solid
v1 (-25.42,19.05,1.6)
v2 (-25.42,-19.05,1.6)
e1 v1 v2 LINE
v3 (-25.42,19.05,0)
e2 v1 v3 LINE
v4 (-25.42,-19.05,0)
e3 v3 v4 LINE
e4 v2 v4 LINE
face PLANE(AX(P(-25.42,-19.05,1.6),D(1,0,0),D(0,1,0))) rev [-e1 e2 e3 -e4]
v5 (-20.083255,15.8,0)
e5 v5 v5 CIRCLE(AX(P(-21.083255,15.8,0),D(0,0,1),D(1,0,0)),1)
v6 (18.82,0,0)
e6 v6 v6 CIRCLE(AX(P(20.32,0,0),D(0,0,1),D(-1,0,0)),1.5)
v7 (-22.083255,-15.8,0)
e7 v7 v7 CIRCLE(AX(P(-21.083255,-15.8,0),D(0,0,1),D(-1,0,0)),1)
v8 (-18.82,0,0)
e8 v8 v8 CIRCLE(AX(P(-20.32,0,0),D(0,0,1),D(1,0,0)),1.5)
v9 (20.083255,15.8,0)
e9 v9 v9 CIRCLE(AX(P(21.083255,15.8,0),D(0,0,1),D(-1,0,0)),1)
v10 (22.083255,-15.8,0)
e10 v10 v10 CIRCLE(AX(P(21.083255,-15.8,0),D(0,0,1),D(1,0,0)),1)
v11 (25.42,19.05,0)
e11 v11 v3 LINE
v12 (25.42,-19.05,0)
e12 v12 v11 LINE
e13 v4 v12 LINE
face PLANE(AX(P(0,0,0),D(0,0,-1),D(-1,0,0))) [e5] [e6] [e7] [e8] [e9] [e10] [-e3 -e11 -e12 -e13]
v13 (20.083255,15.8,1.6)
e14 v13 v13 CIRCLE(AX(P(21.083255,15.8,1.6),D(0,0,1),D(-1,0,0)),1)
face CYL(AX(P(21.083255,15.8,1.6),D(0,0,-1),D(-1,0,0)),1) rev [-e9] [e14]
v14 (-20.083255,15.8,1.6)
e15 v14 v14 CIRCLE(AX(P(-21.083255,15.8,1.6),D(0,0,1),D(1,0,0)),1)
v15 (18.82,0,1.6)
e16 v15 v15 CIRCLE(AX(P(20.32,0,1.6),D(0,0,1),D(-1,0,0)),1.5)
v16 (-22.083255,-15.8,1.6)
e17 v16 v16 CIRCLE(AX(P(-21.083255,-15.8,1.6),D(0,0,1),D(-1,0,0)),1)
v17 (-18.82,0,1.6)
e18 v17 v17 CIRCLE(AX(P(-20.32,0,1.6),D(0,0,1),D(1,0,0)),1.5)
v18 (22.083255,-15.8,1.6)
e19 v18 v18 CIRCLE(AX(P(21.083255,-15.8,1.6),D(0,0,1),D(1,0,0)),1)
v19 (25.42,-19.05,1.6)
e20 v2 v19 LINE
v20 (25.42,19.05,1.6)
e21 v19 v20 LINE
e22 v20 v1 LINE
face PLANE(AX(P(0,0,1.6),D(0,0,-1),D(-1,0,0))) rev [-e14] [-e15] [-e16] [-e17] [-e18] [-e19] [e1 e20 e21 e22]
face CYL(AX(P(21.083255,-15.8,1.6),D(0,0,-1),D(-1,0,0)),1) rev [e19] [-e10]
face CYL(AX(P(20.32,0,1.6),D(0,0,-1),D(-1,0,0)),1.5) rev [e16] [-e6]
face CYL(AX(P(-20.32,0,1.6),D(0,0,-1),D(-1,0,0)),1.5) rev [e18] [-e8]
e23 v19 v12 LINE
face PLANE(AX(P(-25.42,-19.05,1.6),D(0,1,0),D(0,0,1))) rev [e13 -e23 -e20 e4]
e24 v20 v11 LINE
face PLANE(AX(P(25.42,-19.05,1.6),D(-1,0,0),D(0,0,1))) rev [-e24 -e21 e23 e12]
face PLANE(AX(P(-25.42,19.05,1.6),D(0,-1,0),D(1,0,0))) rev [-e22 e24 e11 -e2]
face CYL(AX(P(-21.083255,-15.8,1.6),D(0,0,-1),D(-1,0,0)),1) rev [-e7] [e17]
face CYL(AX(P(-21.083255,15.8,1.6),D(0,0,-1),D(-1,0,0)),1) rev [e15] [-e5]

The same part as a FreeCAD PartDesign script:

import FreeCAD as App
import Part
import Sketcher
from FreeCAD import Vector

doc = App.newDocument("Part")
params = doc.addObject("Spreadsheet::Sheet", "Params")
for row, (alias, value) in enumerate([
    ("sketch1_diameter", "2 mm"),
    ("sketch1_diameter2", "3 mm"),
    ("sketch1_height", "38.1 mm"),
    ("sketch1_width", "50.84 mm"),
    ("pad1_length", "1.6 mm"),
], start=1):
    params.set(f"A{row}", alias)
    params.set(f"B{row}", "=" + value)
    params.setAlias(f"B{row}", alias)

body = doc.addObject("PartDesign::Body", "Body")

# Sketch on XY plane
sketch1 = doc.addObject("Sketcher::SketchObject", "Sketch")
body.addObject(sketch1)
sketch1.AttachmentSupport = (doc.XY_Plane, [""])
sketch1.MapMode = "FlatFace"
sketch1.addGeometry([
    Part.LineSegment(Vector(-25.4, 19.1, 0), Vector(-25.4, -19.1, 0)),  # 0
    Part.LineSegment(Vector(-25.4, -19.1, 0), Vector(25.4, -19.1, 0)),  # 1
    Part.LineSegment(Vector(25.4, -19.1, 0), Vector(25.4, 19.1, 0)),  # 2
    Part.LineSegment(Vector(25.4, 19.1, 0), Vector(-25.4, 19.1, 0)),  # 3
    Part.Circle(Vector(-21.1, -15.8, 0), Vector(0, 0, 1), 1),  # 4
    Part.Circle(Vector(21.1, -15.8, 0), Vector(0, 0, 1), 1),  # 5
    Part.Circle(Vector(-20.3, 0, 0), Vector(0, 0, 1), 1.5),  # 6
    Part.Circle(Vector(-21.1, 15.8, 0), Vector(0, 0, 1), 1),  # 7
    Part.Circle(Vector(20.3, 0, 0), Vector(0, 0, 1), 1.5),  # 8
    Part.Circle(Vector(21.1, 15.8, 0), Vector(0, 0, 1), 1),  # 9
], False)
sketch1.addConstraint([
    Sketcher.Constraint("Coincident", 0, 2, 1, 1),
    Sketcher.Constraint("Coincident", 1, 2, 2, 1),
    Sketcher.Constraint("Coincident", 2, 2, 3, 1),
    Sketcher.Constraint("Coincident", 3, 2, 0, 1),
    Sketcher.Constraint("Vertical", 0),
    Sketcher.Constraint("Horizontal", 1),
    Sketcher.Constraint("Vertical", 2),
    Sketcher.Constraint("Horizontal", 3),
    Sketcher.Constraint("Equal", 4, 5),
    Sketcher.Constraint("Equal", 5, 7),
    Sketcher.Constraint("Equal", 6, 8),
    Sketcher.Constraint("Equal", 7, 9),
    Sketcher.Constraint("Symmetric", 5, 3, 7, 3, -1, 1),
    Sketcher.Constraint("Symmetric", 6, 3, 8, 3, -1, 1),
    Sketcher.Constraint("Symmetric", 4, 3, 9, 3, -1, 1),
    Sketcher.Constraint("Symmetric", 0, 2, 2, 2, -1, 1),
    Sketcher.Constraint("Symmetric", 4, 3, 5, 3, -2),
    Sketcher.Constraint("PointOnObject", 6, 3, -1),
    Sketcher.Constraint("Diameter", 4, 2.0),
    Sketcher.Constraint("Diameter", 6, 3.0),
    Sketcher.Constraint("DistanceY", 0, 2, 0, 1, 38.1),
    Sketcher.Constraint("DistanceX", 1, 1, 1, 2, 50.84),
    Sketcher.Constraint("DistanceY", 4, 3, -1, 1, 15.8),
    Sketcher.Constraint("DistanceX", 0, 2, 6, 3, 5.1),
    Sketcher.Constraint("DistanceX", 4, 3, 5, 3, 42.166509),
])
sketch1.setExpression("Constraints[18]", "Params.sketch1_diameter")
sketch1.setExpression("Constraints[19]", "Params.sketch1_diameter2")
sketch1.setExpression("Constraints[20]", "Params.sketch1_height")
sketch1.setExpression("Constraints[21]", "Params.sketch1_width")
pad1 = doc.addObject("PartDesign::Pad", "Pad")
body.addObject(pad1)
pad1.Profile = sketch1
pad1.setExpression("Length", "Params.pad1_length")

doc.recompute()
